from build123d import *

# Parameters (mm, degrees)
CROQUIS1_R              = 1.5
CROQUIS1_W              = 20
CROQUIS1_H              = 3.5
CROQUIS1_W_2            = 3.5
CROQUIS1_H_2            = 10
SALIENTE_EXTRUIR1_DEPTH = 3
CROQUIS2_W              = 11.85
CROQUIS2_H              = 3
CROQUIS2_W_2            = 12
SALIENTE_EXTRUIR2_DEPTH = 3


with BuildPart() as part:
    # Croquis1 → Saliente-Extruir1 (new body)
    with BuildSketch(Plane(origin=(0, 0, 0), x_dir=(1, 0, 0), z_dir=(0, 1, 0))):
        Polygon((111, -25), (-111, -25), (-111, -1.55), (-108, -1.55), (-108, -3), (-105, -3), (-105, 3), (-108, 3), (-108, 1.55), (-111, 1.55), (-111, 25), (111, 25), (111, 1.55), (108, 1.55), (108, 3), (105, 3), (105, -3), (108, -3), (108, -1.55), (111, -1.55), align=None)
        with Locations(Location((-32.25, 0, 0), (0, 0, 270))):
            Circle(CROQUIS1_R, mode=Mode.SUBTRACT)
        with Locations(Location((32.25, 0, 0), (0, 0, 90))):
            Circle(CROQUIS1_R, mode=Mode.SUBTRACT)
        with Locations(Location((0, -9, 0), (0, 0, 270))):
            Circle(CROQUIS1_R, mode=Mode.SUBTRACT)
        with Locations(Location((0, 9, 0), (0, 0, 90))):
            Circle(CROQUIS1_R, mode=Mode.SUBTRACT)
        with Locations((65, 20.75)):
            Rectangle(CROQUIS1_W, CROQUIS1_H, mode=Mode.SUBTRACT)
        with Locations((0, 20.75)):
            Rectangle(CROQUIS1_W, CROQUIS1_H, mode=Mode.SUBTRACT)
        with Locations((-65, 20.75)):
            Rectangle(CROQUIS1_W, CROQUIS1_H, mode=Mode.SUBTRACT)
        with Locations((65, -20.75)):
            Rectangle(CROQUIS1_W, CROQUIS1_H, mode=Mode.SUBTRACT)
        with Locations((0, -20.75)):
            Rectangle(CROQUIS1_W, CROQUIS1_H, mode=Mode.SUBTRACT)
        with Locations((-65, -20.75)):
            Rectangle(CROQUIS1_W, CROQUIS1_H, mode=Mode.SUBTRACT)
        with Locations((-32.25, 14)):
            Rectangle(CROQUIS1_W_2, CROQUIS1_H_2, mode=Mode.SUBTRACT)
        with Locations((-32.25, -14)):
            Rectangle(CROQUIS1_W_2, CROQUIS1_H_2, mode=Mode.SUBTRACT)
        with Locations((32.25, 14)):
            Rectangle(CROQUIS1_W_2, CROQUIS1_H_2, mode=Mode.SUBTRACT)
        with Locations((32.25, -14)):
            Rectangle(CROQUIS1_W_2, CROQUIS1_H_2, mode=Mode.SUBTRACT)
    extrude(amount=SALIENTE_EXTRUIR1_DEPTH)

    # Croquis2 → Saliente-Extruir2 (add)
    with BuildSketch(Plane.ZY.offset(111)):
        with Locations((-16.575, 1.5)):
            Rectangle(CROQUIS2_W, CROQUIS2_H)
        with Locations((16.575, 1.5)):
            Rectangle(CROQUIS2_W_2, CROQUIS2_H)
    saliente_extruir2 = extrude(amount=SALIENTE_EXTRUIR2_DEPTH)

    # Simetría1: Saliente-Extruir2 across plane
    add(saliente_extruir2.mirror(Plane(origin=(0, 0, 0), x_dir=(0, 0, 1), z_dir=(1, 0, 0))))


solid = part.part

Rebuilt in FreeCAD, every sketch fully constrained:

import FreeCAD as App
import Part
import Sketcher
from FreeCAD import Vector
Q = App.Units.Quantity


def add_polygon(sketch, points):
    """Adds a closed chain of lines whose ends are joined by coincident constraints."""
    first, n = sketch.GeometryCount, len(points)
    for a, b in zip(points, points[1:] + points[:1]):
        sketch.addGeometry(Part.LineSegment(App.Vector(*a, 0), App.Vector(*b, 0)), False)
    for i in range(n):
        sketch.addConstraint(Sketcher.Constraint("Coincident", first + i, 2, first + (i + 1) % n, 1))

doc = App.newDocument("Part")
params = doc.addObject("Spreadsheet::Sheet", "Params")
for row, (alias, value) in enumerate([
    ("sketch1_diameter", "3 mm"),
    ("sketch1_width", "222 mm"),
    ("sketch1_width2", "3 mm"),
    ("sketch1_width3", "20 mm"),
    ("sketch1_height", "6 mm"),
    ("pad1_length", "3 mm"),
    ("sketch2_width", "3 mm"),
    ("sketch2_height", "12 mm"),
    ("sketch2_height2", "11.85 mm"),
    ("pad2_length", "3 mm"),
], start=1):
    params.set(f"A{row}", alias)
    params.set(f"B{row}", "=" + value)
    params.setAlias(f"B{row}", alias)

body = doc.addObject("PartDesign::Body", "Body")

# Sketch on XZ plane
sketch1 = body.newObject("Sketcher::SketchObject", "Sketch")
sketch1.AttachmentSupport = (doc.getObject("XZ_Plane"), [""])
sketch1.MapMode = "FlatFace"
add_polygon(sketch1, [(-111, 25), (111, 25), (111, 1.55), (108, 1.55), (108, 3), (105, 3), (105, -3), (108, -3), (108, -1.55), (111, -1.55), (111, -25), (-111, -25), (-111, -1.55), (-108, -1.55), (-108, -3), (-105, -3), (-105, 3), (-108, 3), (-108, 1.55), (-111, 1.55)])  # lines 0-19
add_polygon(sketch1, [(55, 22.5), (55, 19), (75, 19), (75, 22.5)])  # lines 20-23
add_polygon(sketch1, [(30.5, 19), (30.5, 9), (34, 9), (34, 19)])  # lines 24-27
add_polygon(sketch1, [(-10, 22.5), (-10, 19), (10, 19), (10, 22.5)])  # lines 28-31
add_polygon(sketch1, [(-34, 19), (-34, 9), (-30.5, 9), (-30.5, 19)])  # lines 32-35
add_polygon(sketch1, [(-75, 22.5), (-75, 19), (-55, 19), (-55, 22.5)])  # lines 36-39
sketch1.addGeometry(Part.Circle(Vector(0, 9, 0), Vector(0, 0, 1), 1.5), False)  # 40
sketch1.addGeometry(Part.Circle(Vector(32.25, 0, 0), Vector(0, 0, 1), 1.5), False)  # 41
add_polygon(sketch1, [(55, -19), (55, -22.5), (75, -22.5), (75, -19)])  # lines 42-45
add_polygon(sketch1, [(30.5, -9), (30.5, -19), (34, -19), (34, -9)])  # lines 46-49
sketch1.addGeometry(Part.Circle(Vector(-32.25, 0, 0), Vector(0, 0, 1), 1.5), False)  # 50
sketch1.addGeometry(Part.Circle(Vector(0, -9, 0), Vector(0, 0, 1), 1.5), False)  # 51
add_polygon(sketch1, [(-34, -9), (-34, -19), (-30.5, -19), (-30.5, -9)])  # lines 52-55
add_polygon(sketch1, [(-10, -19), (-10, -22.5), (10, -22.5), (10, -19)])  # lines 56-59
add_polygon(sketch1, [(-75, -19), (-75, -22.5), (-55, -22.5), (-55, -19)])  # lines 60-63
sketch1.addConstraint(Sketcher.Constraint("Horizontal", 0))
sketch1.addConstraint(Sketcher.Constraint("Vertical", 1))
sketch1.addConstraint(Sketcher.Constraint("Horizontal", 2))
sketch1.addConstraint(Sketcher.Constraint("Vertical", 3))
sketch1.addConstraint(Sketcher.Constraint("Horizontal", 4))
sketch1.addConstraint(Sketcher.Constraint("Vertical", 5))
sketch1.addConstraint(Sketcher.Constraint("Horizontal", 6))
sketch1.addConstraint(Sketcher.Constraint("Vertical", 7))
sketch1.addConstraint(Sketcher.Constraint("Horizontal", 8))
sketch1.addConstraint(Sketcher.Constraint("Vertical", 9))
sketch1.addConstraint(Sketcher.Constraint("Horizontal", 10))
sketch1.addConstraint(Sketcher.Constraint("Vertical", 11))
sketch1.addConstraint(Sketcher.Constraint("Horizontal", 12))
sketch1.addConstraint(Sketcher.Constraint("Vertical", 13))
sketch1.addConstraint(Sketcher.Constraint("Horizontal", 14))
sketch1.addConstraint(Sketcher.Constraint("Vertical", 15))
sketch1.addConstraint(Sketcher.Constraint("Horizontal", 16))
sketch1.addConstraint(Sketcher.Constraint("Vertical", 17))
sketch1.addConstraint(Sketcher.Constraint("Horizontal", 18))
sketch1.addConstraint(Sketcher.Constraint("Vertical", 19))
sketch1.addConstraint(Sketcher.Constraint("Vertical", 20))
sketch1.addConstraint(Sketcher.Constraint("Horizontal", 21))
sketch1.addConstraint(Sketcher.Constraint("Vertical", 22))
sketch1.addConstraint(Sketcher.Constraint("Horizontal", 23))
sketch1.addConstraint(Sketcher.Constraint("Vertical", 24))
sketch1.addConstraint(Sketcher.Constraint("Horizontal", 25))
sketch1.addConstraint(Sketcher.Constraint("Vertical", 26))
sketch1.addConstraint(Sketcher.Constraint("Horizontal", 27))
sketch1.addConstraint(Sketcher.Constraint("Vertical", 28))
sketch1.addConstraint(Sketcher.Constraint("Horizontal", 29))
sketch1.addConstraint(Sketcher.Constraint("Vertical", 30))
sketch1.addConstraint(Sketcher.Constraint("Horizontal", 31))
sketch1.addConstraint(Sketcher.Constraint("Vertical", 32))
sketch1.addConstraint(Sketcher.Constraint("Horizontal", 33))
sketch1.addConstraint(Sketcher.Constraint("Vertical", 34))
sketch1.addConstraint(Sketcher.Constraint("Horizontal", 35))
sketch1.addConstraint(Sketcher.Constraint("Vertical", 36))
sketch1.addConstraint(Sketcher.Constraint("Horizontal", 37))
sketch1.addConstraint(Sketcher.Constraint("Vertical", 38))
sketch1.addConstraint(Sketcher.Constraint("Horizontal", 39))
sketch1.addConstraint(Sketcher.Constraint("Vertical", 42))
sketch1.addConstraint(Sketcher.Constraint("Horizontal", 43))
sketch1.addConstraint(Sketcher.Constraint("Vertical", 44))
sketch1.addConstraint(Sketcher.Constraint("Horizontal", 45))
sketch1.addConstraint(Sketcher.Constraint("Vertical", 46))
sketch1.addConstraint(Sketcher.Constraint("Horizontal", 47))
sketch1.addConstraint(Sketcher.Constraint("Vertical", 48))
sketch1.addConstraint(Sketcher.Constraint("Horizontal", 49))
sketch1.addConstraint(Sketcher.Constraint("Vertical", 52))
sketch1.addConstraint(Sketcher.Constraint("Horizontal", 53))
sketch1.addConstraint(Sketcher.Constraint("Vertical", 54))
sketch1.addConstraint(Sketcher.Constraint("Horizontal", 55))
sketch1.addConstraint(Sketcher.Constraint("Vertical", 56))
sketch1.addConstraint(Sketcher.Constraint("Horizontal", 57))
sketch1.addConstraint(Sketcher.Constraint("Vertical", 58))
sketch1.addConstraint(Sketcher.Constraint("Horizontal", 59))
sketch1.addConstraint(Sketcher.Constraint("Vertical", 60))
sketch1.addConstraint(Sketcher.Constraint("Horizontal", 61))
sketch1.addConstraint(Sketcher.Constraint("Vertical", 62))
sketch1.addConstraint(Sketcher.Constraint("Horizontal", 63))
sketch1.addConstraint(Sketcher.Constraint("Equal", 40, 41))
sketch1.addConstraint(Sketcher.Constraint("Equal", 41, 50))
sketch1.addConstraint(Sketcher.Constraint("Equal", 50, 51))
sketch1.addConstraint(Sketcher.Constraint("Symmetric", 41, 3, 50, 3, -1, 1))
sketch1.addConstraint(Sketcher.Constraint("Symmetric", 40, 3, 51, 3, -1, 1))
sketch1.addConstraint(Sketcher.Constraint("Symmetric", 0, 2, 10, 2, -1, 1))
sketch1.addConstraint(Sketcher.Constraint("Symmetric", 2, 2, 12, 2, -1, 1))
sketch1.addConstraint(Sketcher.Constraint("Symmetric", 4, 2, 14, 2, -1, 1))
sketch1.addConstraint(Sketcher.Constraint("Symmetric", 6, 2, 16, 2, -1, 1))
sketch1.addConstraint(Sketcher.Constraint("Symmetric", 8, 2, 18, 2, -1, 1))
sketch1.addConstraint(Sketcher.Constraint("Symmetric", 38, 2, 42, 2, -1, 1))
sketch1.addConstraint(Sketcher.Constraint("Symmetric", 36, 2, 44, 2, -1, 1))
sketch1.addConstraint(Sketcher.Constraint("Symmetric", 34, 2, 46, 2, -1, 1))
sketch1.addConstraint(Sketcher.Constraint("Symmetric", 32, 2, 48, 2, -1, 1))
sketch1.addConstraint(Sketcher.Constraint("Symmetric", 26, 2, 52, 2, -1, 1))
sketch1.addConstraint(Sketcher.Constraint("Symmetric", 24, 2, 54, 2, -1, 1))
sketch1.addConstraint(Sketcher.Constraint("Symmetric", 30, 2, 56, 2, -1, 1))
sketch1.addConstraint(Sketcher.Constraint("Symmetric", 28, 2, 58, 2, -1, 1))
sketch1.addConstraint(Sketcher.Constraint("Symmetric", 22, 2, 60, 2, -1, 1))
sketch1.addConstraint(Sketcher.Constraint("Symmetric", 20, 2, 62, 2, -1, 1))
sketch1.addConstraint(Sketcher.Constraint("Symmetric", 8, 2, 11, 2, -2))
sketch1.addConstraint(Sketcher.Constraint("Symmetric", 6, 2, 13, 2, -2))
sketch1.addConstraint(Sketcher.Constraint("Symmetric", 25, 2, 32, 2, -2))
sketch1.addConstraint(Sketcher.Constraint("Symmetric", 27, 2, 34, 2, -2))
sketch1.addConstraint(Sketcher.Constraint("Symmetric", 21, 2, 36, 2, -2))
sketch1.addConstraint(Sketcher.Constraint("Symmetric", 23, 2, 38, 2, -2))
sketch1.addConstraint(Sketcher.Constraint("PointOnObject", 40, 3, -2))
sketch1.addConstraint(Sketcher.Constraint("PointOnObject", 41, 3, -1))
sketch1.addConstraint(Sketcher.Constraint("Horizontal", 40, 3, 24, 2))
sketch1.addConstraint(Sketcher.Constraint("Horizontal", 21, 2, 26, 2))
sketch1.addConstraint(Sketcher.Constraint("Horizontal", 27, 2, 28, 2))
sketch1.addConstraint(Sketcher.Constraint("Horizontal", 23, 2, 30, 2))
sketch1.addConstraint(Sketcher.Constraint("Vertical", 31, 2, 56, 2))
sketch1.addConstraint(Sketcher.Constraint("Equal", 2, 4))
sketch1.addConstraint(Sketcher.Constraint("Equal", 23, 29))
sketch1.addConstraint(Sketcher.Constraint("Equal", 55, 20))
sketch1.addConstraint(Sketcher.Constraint("Diameter", 40, Q("3 mm")))
sketch1.addConstraint(Sketcher.Constraint("DistanceX", 0, 1, 0, 2, Q("222 mm")))
sketch1.addConstraint(Sketcher.Constraint("DistanceX", 2, 2, 2, 1, Q("3 mm")))
sketch1.addConstraint(Sketcher.Constraint("DistanceX", 21, 1, 21, 2, Q("20 mm")))
sketch1.addConstraint(Sketcher.Constraint("DistanceY", 5, 2, 5, 1, Q("6 mm")))
sketch1.addConstraint(Sketcher.Constraint("DistanceY", 24, 2, 24, 1, Q("10 mm")))
sketch1.addConstraint(Sketcher.Constraint("DistanceX", 25, 1, 25, 2, Q("3.5 mm")))
sketch1.addConstraint(Sketcher.Constraint("DistanceY", -1, 1, 40, 3, Q("9 mm")))
sketch1.addConstraint(Sketcher.Constraint("DistanceY", -1, 1, 0, 2, Q("25 mm")))
sketch1.addConstraint(Sketcher.Constraint("DistanceX", -1, 1, 20, 2, Q("55 mm")))
sketch1.addConstraint(Sketcher.Constraint("DistanceX", -1, 1, 25, 2, Q("34 mm")))
sketch1.addConstraint(Sketcher.Constraint("DistanceY", 1, 2, 1, 1, Q("23.45 mm")))
sketch1.addConstraint(Sketcher.Constraint("DistanceX", -1, 1, 41, 3, Q("32.25 mm")))
sketch1.setExpression("Constraints[156]", "Params.sketch1_diameter")
sketch1.setExpression("Constraints[157]", "Params.sketch1_width")
sketch1.setExpression("Constraints[158]", "Params.sketch1_width2")
sketch1.setExpression("Constraints[159]", "Params.sketch1_width3")
sketch1.setExpression("Constraints[160]", "Params.sketch1_height")
pad1 = body.newObject("PartDesign::Pad", "Pad")
pad1.Profile = sketch1
pad1.setExpression("Length", "Params.pad1_length")
pad1.Reversed = True

# Sketch on YZ plane
sketch2 = body.newObject("Sketcher::SketchObject", "Sketch001")
sketch2.AttachmentSupport = (doc.getObject("YZ_Plane"), [""])
sketch2.MapMode = "FlatFace"
sketch2.AttachmentOffset = App.Placement(Vector(0, 0, -111), App.Rotation())
add_polygon(sketch2, [(3, -22.5), (0, -22.5), (0, -10.65), (3, -10.65)])  # lines 0-3
add_polygon(sketch2, [(3, 10.575), (0, 10.575), (0, 22.575), (3, 22.575)])  # lines 4-7
sketch2.addConstraint(Sketcher.Constraint("Horizontal", 0))
sketch2.addConstraint(Sketcher.Constraint("Vertical", 1))
sketch2.addConstraint(Sketcher.Constraint("Horizontal", 2))
sketch2.addConstraint(Sketcher.Constraint("Vertical", 3))
sketch2.addConstraint(Sketcher.Constraint("Horizontal", 4))
sketch2.addConstraint(Sketcher.Constraint("Vertical", 5))
sketch2.addConstraint(Sketcher.Constraint("Horizontal", 6))
sketch2.addConstraint(Sketcher.Constraint("Vertical", 7))
sketch2.addConstraint(Sketcher.Constraint("PointOnObject", 0, 2, -2))
sketch2.addConstraint(Sketcher.Constraint("PointOnObject", 4, 2, -2))
sketch2.addConstraint(Sketcher.Constraint("Vertical", 3, 2, 6, 2))
sketch2.addConstraint(Sketcher.Constraint("DistanceX", 0, 2, 0, 1, Q("3 mm")))
sketch2.addConstraint(Sketcher.Constraint("DistanceY", 5, 1, 5, 2, Q("12 mm")))
sketch2.addConstraint(Sketcher.Constraint("DistanceY", 1, 1, 1, 2, Q("11.85 mm")))
sketch2.addConstraint(Sketcher.Constraint("DistanceY", 0, 2, -1, 1, Q("22.5 mm")))
sketch2.addConstraint(Sketcher.Constraint("DistanceY", -1, 1, 4, 2, Q("10.575 mm")))
sketch2.setExpression("Constraints[19]", "Params.sketch2_width")
sketch2.setExpression("Constraints[20]", "Params.sketch2_height")
sketch2.setExpression("Constraints[21]", "Params.sketch2_height2")
pad2 = body.newObject("PartDesign::Pad", "Pad001")
pad2.Profile = sketch2
pad2.setExpression("Length", "Params.pad2_length")
pad2.Reversed = True
doc.recompute()

mirrored = body.newObject("PartDesign::Mirrored", "Mirrored")
mirrored.Originals = [pad2]
mirrored.MirrorPlane = (doc.getObject("YZ_Plane"), [""])
body.Tip = mirrored

doc.recompute()
